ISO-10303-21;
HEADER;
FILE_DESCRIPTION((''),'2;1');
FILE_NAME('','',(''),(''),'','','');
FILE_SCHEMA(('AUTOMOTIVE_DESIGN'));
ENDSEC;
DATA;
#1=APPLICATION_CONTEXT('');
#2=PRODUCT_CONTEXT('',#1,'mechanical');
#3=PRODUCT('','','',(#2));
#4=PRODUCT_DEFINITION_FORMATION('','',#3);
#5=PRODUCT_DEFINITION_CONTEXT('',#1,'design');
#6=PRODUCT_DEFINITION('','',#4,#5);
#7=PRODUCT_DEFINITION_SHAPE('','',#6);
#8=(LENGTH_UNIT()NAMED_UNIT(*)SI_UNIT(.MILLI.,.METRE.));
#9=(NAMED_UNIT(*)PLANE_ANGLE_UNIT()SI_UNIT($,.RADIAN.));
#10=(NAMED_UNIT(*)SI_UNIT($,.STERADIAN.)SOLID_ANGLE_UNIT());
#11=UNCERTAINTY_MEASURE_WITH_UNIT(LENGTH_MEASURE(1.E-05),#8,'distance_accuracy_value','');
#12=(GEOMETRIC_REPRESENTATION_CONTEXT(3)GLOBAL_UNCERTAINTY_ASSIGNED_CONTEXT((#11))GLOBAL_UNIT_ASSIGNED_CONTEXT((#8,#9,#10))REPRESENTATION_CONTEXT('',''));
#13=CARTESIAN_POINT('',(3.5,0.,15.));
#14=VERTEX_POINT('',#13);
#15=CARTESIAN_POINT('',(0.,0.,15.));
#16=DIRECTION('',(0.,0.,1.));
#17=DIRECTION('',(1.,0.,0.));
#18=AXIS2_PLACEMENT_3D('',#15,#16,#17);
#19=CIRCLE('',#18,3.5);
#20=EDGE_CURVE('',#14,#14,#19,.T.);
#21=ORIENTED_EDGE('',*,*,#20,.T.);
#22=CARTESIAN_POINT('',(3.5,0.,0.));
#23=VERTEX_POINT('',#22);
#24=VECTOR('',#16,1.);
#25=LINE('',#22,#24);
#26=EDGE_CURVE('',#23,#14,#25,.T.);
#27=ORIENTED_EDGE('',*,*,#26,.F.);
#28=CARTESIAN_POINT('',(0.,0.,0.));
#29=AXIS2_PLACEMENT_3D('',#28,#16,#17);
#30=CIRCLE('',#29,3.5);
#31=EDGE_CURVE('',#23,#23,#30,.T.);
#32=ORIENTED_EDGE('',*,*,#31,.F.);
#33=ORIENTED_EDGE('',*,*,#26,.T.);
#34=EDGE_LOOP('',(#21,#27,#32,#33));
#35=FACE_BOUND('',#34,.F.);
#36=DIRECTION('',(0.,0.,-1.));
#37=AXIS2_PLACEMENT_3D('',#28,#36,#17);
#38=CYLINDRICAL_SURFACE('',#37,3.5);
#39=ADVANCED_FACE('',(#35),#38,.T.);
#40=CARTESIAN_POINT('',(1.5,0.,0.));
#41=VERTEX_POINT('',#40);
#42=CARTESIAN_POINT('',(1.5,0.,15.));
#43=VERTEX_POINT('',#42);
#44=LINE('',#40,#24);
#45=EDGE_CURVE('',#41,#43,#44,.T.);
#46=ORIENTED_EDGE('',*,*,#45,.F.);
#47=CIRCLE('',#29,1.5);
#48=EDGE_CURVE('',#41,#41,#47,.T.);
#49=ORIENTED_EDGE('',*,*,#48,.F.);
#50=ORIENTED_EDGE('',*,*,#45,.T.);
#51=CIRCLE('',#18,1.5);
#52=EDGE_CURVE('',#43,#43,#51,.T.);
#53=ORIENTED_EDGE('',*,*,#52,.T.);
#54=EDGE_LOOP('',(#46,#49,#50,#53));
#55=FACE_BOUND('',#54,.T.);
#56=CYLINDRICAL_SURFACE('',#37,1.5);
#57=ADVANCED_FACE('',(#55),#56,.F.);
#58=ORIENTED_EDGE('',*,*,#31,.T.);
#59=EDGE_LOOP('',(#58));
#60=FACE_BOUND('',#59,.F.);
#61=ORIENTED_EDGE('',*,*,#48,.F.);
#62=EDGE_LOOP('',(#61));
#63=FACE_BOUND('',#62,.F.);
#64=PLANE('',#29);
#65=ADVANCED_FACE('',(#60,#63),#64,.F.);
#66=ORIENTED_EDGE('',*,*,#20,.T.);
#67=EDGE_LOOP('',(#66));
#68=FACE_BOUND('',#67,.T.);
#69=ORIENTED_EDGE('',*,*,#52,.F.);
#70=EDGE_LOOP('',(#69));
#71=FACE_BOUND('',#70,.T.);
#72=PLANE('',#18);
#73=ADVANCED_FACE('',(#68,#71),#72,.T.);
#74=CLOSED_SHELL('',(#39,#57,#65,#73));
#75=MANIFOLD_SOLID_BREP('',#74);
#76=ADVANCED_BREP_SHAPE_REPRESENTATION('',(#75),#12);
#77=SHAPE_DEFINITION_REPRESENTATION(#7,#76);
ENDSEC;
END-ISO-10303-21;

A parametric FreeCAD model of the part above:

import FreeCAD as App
import Part
import Sketcher
from FreeCAD import Vector

doc = App.newDocument("Part")
body = doc.addObject("PartDesign::Body", "Body")

sketch1 = body.newObject("Sketcher::SketchObject", "Sketch")
sketch1.AttachmentSupport = (doc.getObject("XY_Plane"), [""])
sketch1.MapMode = "FlatFace"
sketch1.addGeometry([
    Part.Circle(Vector(0, 0, 0), Vector(0, 0, 1), 3.5),
    Part.Circle(Vector(0, 0, 0), Vector(0, 0, 1), 1.5),
], False)
sketch1.addConstraint([
    Sketcher.Constraint("Coincident", 0, 3, -1, 1),
    Sketcher.Constraint("Coincident", 1, 3, -1, 1),
    Sketcher.Constraint("Diameter", 1, 3.0),
    Sketcher.Constraint("Diameter", 0, 7.0),
])
pad1 = body.newObject("PartDesign::Pad", "Pad")
pad1.Profile = sketch1
pad1.Length = 15

doc.recompute()
